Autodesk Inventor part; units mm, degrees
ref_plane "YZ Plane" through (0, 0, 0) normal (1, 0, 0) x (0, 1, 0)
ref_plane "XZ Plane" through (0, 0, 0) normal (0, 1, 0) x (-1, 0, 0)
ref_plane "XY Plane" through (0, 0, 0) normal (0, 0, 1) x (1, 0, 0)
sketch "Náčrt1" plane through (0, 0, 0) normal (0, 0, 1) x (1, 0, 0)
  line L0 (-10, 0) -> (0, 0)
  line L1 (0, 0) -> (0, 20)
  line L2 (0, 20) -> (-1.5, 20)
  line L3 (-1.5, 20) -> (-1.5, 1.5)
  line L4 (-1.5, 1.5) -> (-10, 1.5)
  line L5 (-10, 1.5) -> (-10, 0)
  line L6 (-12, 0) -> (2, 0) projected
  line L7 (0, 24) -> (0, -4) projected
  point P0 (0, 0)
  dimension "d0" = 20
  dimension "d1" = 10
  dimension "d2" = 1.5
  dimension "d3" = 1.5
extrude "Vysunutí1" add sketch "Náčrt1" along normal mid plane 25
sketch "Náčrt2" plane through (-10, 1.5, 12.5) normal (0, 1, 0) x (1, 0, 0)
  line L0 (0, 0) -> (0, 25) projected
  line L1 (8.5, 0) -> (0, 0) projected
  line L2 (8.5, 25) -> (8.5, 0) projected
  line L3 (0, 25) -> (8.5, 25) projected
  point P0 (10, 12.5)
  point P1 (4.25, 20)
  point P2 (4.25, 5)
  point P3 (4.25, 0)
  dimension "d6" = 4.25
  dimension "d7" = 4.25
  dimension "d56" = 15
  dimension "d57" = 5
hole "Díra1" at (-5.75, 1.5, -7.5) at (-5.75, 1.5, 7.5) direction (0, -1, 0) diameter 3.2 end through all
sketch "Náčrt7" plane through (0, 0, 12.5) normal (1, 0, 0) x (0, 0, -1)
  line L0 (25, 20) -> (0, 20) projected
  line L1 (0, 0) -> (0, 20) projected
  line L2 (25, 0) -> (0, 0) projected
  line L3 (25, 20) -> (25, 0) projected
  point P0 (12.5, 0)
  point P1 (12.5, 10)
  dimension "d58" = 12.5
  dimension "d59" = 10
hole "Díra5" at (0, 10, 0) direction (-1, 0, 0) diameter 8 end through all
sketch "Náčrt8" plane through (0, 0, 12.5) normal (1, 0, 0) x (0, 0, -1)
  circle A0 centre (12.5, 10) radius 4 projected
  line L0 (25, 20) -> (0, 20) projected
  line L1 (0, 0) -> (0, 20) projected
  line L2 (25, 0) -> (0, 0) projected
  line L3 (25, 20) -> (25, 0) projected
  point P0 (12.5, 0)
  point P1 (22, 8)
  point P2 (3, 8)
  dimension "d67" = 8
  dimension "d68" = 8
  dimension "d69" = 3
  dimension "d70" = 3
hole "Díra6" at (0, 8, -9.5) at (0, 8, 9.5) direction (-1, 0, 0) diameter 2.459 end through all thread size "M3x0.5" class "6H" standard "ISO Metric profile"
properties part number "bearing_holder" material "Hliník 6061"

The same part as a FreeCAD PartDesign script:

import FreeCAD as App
import Part
import Sketcher

V = App.Vector


def add_polygon(sketch, points):
    """Adds a closed chain of lines whose ends are joined by coincident constraints."""
    first, n = sketch.GeometryCount, len(points)
    for a, b in zip(points, points[1:] + points[:1]):
        sketch.addGeometry(Part.LineSegment(App.Vector(*a, 0), App.Vector(*b, 0)), False)
    for i in range(n):
        sketch.addConstraint(Sketcher.Constraint("Coincident", first + i, 2, first + (i + 1) % n, 1))

doc = App.newDocument("Part")
body = doc.addObject("PartDesign::Body", "Body")

sketch1 = body.newObject("Sketcher::SketchObject", "Sketch")
sketch1.AttachmentSupport = (doc.getObject("XY_Plane"), [""])
sketch1.MapMode = "FlatFace"
add_polygon(sketch1, [(-10, 1.5), (-10, 0), (0, 0), (0, 20), (-1.5, 20), (-1.5, 1.5)])
sketch1.addConstraint(Sketcher.Constraint("Vertical", 0))
sketch1.addConstraint(Sketcher.Constraint("Horizontal", 1))
sketch1.addConstraint(Sketcher.Constraint("Vertical", 2))
sketch1.addConstraint(Sketcher.Constraint("Horizontal", 3))
sketch1.addConstraint(Sketcher.Constraint("Vertical", 4))
sketch1.addConstraint(Sketcher.Constraint("Horizontal", 5))
sketch1.addConstraint(Sketcher.Constraint("Coincident", 1, 2, -1, 1))
sketch1.addConstraint(Sketcher.Constraint("Equal", 3, 0))
sketch1.addConstraint(Sketcher.Constraint("DistanceX", 1, 1, 1, 2, 10.0))
sketch1.addConstraint(Sketcher.Constraint("DistanceY", 2, 1, 2, 2, 20.0))
sketch1.addConstraint(Sketcher.Constraint("DistanceX", 3, 2, 3, 1, 1.5))
pad1 = body.newObject("PartDesign::Pad", "Pad")
pad1.Profile = sketch1
pad1.Length = 25
pad1.Midplane = True

sketch2 = body.newObject("Sketcher::SketchObject", "Sketch001")
sketch2.AttachmentSupport = (doc.getObject("XZ_Plane"), [""])
sketch2.MapMode = "FlatFace"
sketch2.AttachmentOffset = App.Placement(V(0, 0, -1.5), App.Rotation())
sketch2.addGeometry(Part.Circle(V(-5.75, -7.5, 0), V(0, 0, 1), 1.6), False)
sketch2.addGeometry(Part.Circle(V(-5.75, 7.5, 0), V(0, 0, 1), 1.6), False)
sketch2.addConstraint(Sketcher.Constraint("Equal", 0, 1))
sketch2.addConstraint(Sketcher.Constraint("Symmetric", 0, 3, 1, 3, -1))
sketch2.addConstraint(Sketcher.Constraint("Diameter", 0, 3.2))
sketch2.addConstraint(Sketcher.Constraint("DistanceY", 0, 3, 1, 3, 15.0))
sketch2.addConstraint(Sketcher.Constraint("DistanceX", 0, 3, -1, 1, 5.75))
doc.recompute()
hole = body.newObject("PartDesign::Hole", "Hole")
hole.Profile = sketch2
hole.ThreadType = "None"
hole.Diameter = 3.2
hole.DepthType = "ThroughAll"
hole.Reversed = True

sketch3 = body.newObject("Sketcher::SketchObject", "Sketch002")
sketch3.AttachmentSupport = (doc.getObject("YZ_Plane"), [""])
sketch3.MapMode = "FlatFace"
sketch3.addGeometry(Part.Circle(V(10, 0, 0), V(0, 0, 1), 4), False)
sketch3.addConstraint(Sketcher.Constraint("PointOnObject", 0, 3, -1))
sketch3.addConstraint(Sketcher.Constraint("Diameter", 0, 8.0))
sketch3.addConstraint(Sketcher.Constraint("DistanceX", -1, 1, 0, 3, 10.0))
doc.recompute()
hole2 = body.newObject("PartDesign::Hole", "Hole001")
hole2.Profile = sketch3
hole2.ThreadType = "None"
hole2.Diameter = 8
hole2.DepthType = "ThroughAll"

sketch4 = body.newObject("Sketcher::SketchObject", "Sketch003")
sketch4.AttachmentSupport = (doc.getObject("YZ_Plane"), [""])
sketch4.MapMode = "FlatFace"
sketch4.addGeometry(Part.Circle(V(8, -9.5, 0), V(0, 0, 1), 1.2295), False)
sketch4.addGeometry(Part.Circle(V(8, 9.5, 0), V(0, 0, 1), 1.2295), False)
sketch4.addConstraint(Sketcher.Constraint("Equal", 0, 1))
sketch4.addConstraint(Sketcher.Constraint("Symmetric", 0, 3, 1, 3, -1))
sketch4.addConstraint(Sketcher.Constraint("Diameter", 0, 2.459))
sketch4.addConstraint(Sketcher.Constraint("DistanceX", -1, 1, 0, 3, 8.0))
sketch4.addConstraint(Sketcher.Constraint("DistanceY", 0, 3, 1, 3, 19.0))
doc.recompute()
hole3 = body.newObject("PartDesign::Hole", "Hole002")
hole3.Profile = sketch4
hole3.ThreadType = "None"
hole3.Diameter = 2.459
hole3.DepthType = "ThroughAll"

doc.recompute()
